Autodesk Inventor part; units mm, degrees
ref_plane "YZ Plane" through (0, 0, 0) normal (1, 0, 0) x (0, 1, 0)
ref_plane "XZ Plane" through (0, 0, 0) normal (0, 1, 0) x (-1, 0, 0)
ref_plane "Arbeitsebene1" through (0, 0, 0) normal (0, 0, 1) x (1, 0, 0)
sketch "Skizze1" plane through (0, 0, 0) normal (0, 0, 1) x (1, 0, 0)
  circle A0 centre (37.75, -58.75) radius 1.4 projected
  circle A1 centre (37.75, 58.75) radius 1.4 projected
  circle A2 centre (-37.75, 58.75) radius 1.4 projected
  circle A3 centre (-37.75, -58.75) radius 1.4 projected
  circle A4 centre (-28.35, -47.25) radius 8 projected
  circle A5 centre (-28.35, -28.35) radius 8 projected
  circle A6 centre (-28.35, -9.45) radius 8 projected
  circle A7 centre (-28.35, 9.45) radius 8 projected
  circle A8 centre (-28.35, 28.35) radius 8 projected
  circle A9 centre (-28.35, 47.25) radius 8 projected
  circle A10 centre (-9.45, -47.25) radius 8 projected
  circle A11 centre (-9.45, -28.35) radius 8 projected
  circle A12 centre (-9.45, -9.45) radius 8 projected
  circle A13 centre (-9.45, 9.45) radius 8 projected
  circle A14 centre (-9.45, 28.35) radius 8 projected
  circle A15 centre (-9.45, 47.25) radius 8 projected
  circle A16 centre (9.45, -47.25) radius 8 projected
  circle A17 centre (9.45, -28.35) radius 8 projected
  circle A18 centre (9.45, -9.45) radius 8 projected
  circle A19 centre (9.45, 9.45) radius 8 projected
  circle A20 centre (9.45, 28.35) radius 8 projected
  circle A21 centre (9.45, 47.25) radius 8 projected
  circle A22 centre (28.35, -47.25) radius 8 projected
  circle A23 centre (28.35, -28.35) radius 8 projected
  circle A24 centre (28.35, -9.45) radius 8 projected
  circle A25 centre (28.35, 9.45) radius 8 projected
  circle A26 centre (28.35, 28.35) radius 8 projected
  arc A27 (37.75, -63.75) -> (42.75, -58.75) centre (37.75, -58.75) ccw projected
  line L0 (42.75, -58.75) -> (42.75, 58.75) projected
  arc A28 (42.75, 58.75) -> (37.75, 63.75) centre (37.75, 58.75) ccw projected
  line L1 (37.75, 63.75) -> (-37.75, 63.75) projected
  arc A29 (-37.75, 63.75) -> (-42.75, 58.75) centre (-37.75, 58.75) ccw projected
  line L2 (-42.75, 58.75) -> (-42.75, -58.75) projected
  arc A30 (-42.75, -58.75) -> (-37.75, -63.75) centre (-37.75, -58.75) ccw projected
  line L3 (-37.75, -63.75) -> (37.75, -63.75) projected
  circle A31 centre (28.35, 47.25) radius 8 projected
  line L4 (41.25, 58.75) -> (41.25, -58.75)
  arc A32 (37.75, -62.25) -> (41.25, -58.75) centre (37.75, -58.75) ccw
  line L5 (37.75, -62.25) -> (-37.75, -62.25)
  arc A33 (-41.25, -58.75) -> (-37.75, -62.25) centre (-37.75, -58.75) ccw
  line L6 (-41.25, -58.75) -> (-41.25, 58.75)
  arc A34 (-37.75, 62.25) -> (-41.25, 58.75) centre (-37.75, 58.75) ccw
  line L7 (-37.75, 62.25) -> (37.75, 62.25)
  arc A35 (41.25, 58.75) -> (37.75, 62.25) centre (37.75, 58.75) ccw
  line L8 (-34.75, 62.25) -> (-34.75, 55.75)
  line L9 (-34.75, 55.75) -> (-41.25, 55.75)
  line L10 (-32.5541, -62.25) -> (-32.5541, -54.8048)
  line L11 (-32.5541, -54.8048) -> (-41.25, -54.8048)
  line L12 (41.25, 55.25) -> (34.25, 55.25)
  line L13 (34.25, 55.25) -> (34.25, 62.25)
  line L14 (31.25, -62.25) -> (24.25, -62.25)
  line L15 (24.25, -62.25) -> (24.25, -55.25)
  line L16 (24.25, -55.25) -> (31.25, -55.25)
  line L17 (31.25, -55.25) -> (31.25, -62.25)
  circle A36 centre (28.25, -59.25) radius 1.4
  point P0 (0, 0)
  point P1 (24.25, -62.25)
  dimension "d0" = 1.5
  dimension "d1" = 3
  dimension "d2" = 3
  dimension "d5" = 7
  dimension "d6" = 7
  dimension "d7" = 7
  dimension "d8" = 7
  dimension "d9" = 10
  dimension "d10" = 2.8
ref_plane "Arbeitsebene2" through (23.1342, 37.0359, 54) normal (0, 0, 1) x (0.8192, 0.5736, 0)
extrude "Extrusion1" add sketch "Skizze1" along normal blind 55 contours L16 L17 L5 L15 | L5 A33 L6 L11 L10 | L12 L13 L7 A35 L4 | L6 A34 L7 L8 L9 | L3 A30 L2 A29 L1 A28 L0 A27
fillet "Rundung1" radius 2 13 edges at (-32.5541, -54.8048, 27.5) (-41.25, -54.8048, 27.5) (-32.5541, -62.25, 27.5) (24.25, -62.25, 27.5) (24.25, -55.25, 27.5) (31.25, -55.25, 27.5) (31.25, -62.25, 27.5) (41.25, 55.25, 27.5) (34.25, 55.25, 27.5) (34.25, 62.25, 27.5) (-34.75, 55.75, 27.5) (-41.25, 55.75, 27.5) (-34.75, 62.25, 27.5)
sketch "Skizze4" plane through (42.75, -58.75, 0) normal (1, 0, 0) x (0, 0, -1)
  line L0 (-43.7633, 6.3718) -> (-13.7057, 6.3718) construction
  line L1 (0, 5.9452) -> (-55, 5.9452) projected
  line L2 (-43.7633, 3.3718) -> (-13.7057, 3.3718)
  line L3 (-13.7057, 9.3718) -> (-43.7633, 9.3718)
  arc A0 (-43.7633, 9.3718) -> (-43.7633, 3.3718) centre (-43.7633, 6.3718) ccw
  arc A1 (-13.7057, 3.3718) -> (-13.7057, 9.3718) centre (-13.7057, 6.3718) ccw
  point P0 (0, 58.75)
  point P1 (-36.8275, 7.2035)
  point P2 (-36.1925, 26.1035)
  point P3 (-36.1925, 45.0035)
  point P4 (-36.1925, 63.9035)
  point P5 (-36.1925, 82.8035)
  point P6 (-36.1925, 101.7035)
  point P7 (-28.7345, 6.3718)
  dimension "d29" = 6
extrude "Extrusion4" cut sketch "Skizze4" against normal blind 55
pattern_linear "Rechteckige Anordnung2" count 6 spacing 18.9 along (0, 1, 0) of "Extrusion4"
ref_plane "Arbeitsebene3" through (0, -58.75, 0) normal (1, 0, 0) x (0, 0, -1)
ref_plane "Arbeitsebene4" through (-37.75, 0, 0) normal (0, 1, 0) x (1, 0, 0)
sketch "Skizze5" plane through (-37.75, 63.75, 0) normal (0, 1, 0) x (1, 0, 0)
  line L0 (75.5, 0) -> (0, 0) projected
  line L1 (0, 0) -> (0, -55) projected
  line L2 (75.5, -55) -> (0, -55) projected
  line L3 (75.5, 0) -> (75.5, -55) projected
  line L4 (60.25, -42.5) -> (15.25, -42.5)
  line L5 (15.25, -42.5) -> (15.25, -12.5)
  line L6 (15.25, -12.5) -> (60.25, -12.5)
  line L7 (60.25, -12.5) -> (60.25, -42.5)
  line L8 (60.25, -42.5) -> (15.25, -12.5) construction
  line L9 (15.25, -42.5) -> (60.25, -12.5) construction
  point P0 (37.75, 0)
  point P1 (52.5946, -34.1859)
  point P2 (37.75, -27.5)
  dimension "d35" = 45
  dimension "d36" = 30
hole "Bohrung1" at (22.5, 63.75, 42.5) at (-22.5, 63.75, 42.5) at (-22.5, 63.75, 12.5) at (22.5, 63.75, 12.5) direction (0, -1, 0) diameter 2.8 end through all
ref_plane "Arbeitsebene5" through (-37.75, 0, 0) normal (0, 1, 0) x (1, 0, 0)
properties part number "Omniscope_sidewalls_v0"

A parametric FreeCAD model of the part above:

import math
import FreeCAD as App
import Part
import Sketcher


def edges_at(feature, points):
    """Names of the edges that pass closest to the given points."""
    edges = feature.Shape.Edges
    near = lambda p: min(range(len(edges)), key=lambda i: edges[i].distToShape(Part.Vertex(*p))[0])
    return sorted({f"Edge{near(p) + 1}" for p in points})

doc = App.newDocument("Part")
params = doc.addObject("Spreadsheet::Sheet", "Params")
for row, (alias, value) in enumerate([
    ("sketch1_radius", "5 mm"),
    ("sketch1_diameter", "2.8 mm"),
    ("sketch1_radius2", "3.5 mm"),
    ("sketch1_width", "7 mm"),
    ("sketch1_width2", "69 mm"),
    ("pad1_length", "55 mm"),
    ("fillet_radius", "2 mm"),
    ("sketch2_radius", "3 mm"),
    ("pocket1_length", "55 mm"),
    ("linearpattern_pitch", "18.9 mm"),
    ("sketch3_diameter", "2.8 mm"),
    ("hole_diameter", "2.8 mm"),
], start=1):
    params.set(f"A{row}", alias)
    params.set(f"B{row}", "=" + value)
    params.setAlias(f"B{row}", alias)

body = doc.addObject("PartDesign::Body", "Body")

sketch1 = doc.addObject("Sketcher::SketchObject", "Sketch")
body.addObject(sketch1)
sketch1.AttachmentSupport = (doc.XY_Plane, [""])
sketch1.MapMode = "FlatFace"
sketch1.addGeometry([
    Part.LineSegment(App.Vector(-37.8, -63.8, 0), App.Vector(37.8, -63.8, 0)),
    Part.ArcOfCircle(Part.Circle(App.Vector(37.8, -58.8, 0), App.Vector(0, 0, 1), 5), math.radians(-90), math.radians(0)),
    Part.LineSegment(App.Vector(42.8, -58.8, 0), App.Vector(42.8, 58.8, 0)),
    Part.ArcOfCircle(Part.Circle(App.Vector(37.8, 58.8, 0), App.Vector(0, 0, 1), 5), math.radians(0), math.radians(90)),
    Part.LineSegment(App.Vector(37.8, 63.8, 0), App.Vector(-37.8, 63.8, 0)),
    Part.ArcOfCircle(Part.Circle(App.Vector(-37.8, 58.8, 0), App.Vector(0, 0, 1), 5), math.radians(90), math.radians(180)),
    Part.LineSegment(App.Vector(-42.8, 58.8, 0), App.Vector(-42.8, -58.8, 0)),
    Part.ArcOfCircle(Part.Circle(App.Vector(-37.8, -58.8, 0), App.Vector(0, 0, 1), 5), math.radians(180), math.radians(270)),
    Part.LineSegment(App.Vector(31.2, -55.2, 0), App.Vector(24.2, -55.2, 0)),
    Part.LineSegment(App.Vector(24.2, -55.2, 0), App.Vector(24.2, -62.2, 0)),
    Part.LineSegment(App.Vector(24.2, -62.2, 0), App.Vector(-32.6, -62.2, 0)),
    Part.LineSegment(App.Vector(-32.6, -62.2, 0), App.Vector(-32.6, -54.8, 0)),
    Part.LineSegment(App.Vector(-32.6, -54.8, 0), App.Vector(-41.2, -54.8, 0)),
    Part.LineSegment(App.Vector(-41.2, -54.8, 0), App.Vector(-41.2, 55.8, 0)),
    Part.LineSegment(App.Vector(-41.2, 55.8, 0), App.Vector(-34.8, 55.8, 0)),
    Part.LineSegment(App.Vector(-34.8, 55.8, 0), App.Vector(-34.8, 62.2, 0)),
    Part.LineSegment(App.Vector(-34.8, 62.2, 0), App.Vector(34.2, 62.2, 0)),
    Part.LineSegment(App.Vector(34.2, 62.2, 0), App.Vector(34.2, 55.2, 0)),
    Part.LineSegment(App.Vector(34.2, 55.2, 0), App.Vector(41.2, 55.2, 0)),
    Part.LineSegment(App.Vector(41.2, 55.2, 0), App.Vector(41.2, -58.8, 0)),
    Part.ArcOfCircle(Part.Circle(App.Vector(37.8, -58.8, 0), App.Vector(0, 0, 1), 3.5), math.radians(-90), math.radians(0)),
    Part.LineSegment(App.Vector(37.8, -62.2, 0), App.Vector(31.2, -62.2, 0)),
    Part.LineSegment(App.Vector(31.2, -62.2, 0), App.Vector(31.2, -55.2, 0)),
    Part.Circle(App.Vector(28.2, -59.2, 0), App.Vector(0, 0, 1), 1.4),
    Part.Circle(App.Vector(37.8, 58.8, 0), App.Vector(0, 0, 1), 1.4),
    Part.Circle(App.Vector(-37.8, 58.8, 0), App.Vector(0, 0, 1), 1.4),
    Part.Circle(App.Vector(-37.8, -58.8, 0), App.Vector(0, 0, 1), 1.4),
], False)
sketch1.addConstraint([
    Sketcher.Constraint("Tangent", 0, 2, 1, 1),
    Sketcher.Constraint("Tangent", 1, 2, 2, 1),
    Sketcher.Constraint("Tangent", 2, 2, 3, 1),
    Sketcher.Constraint("Tangent", 3, 2, 4, 1),
    Sketcher.Constraint("Tangent", 4, 2, 5, 1),
    Sketcher.Constraint("Tangent", 5, 2, 6, 1),
    Sketcher.Constraint("Tangent", 6, 2, 7, 1),
    Sketcher.Constraint("Tangent", 7, 2, 0, 1),
    Sketcher.Constraint("Coincident", 8, 2, 9, 1),
    Sketcher.Constraint("Coincident", 9, 2, 10, 1),
    Sketcher.Constraint("Coincident", 10, 2, 11, 1),
    Sketcher.Constraint("Coincident", 11, 2, 12, 1),
    Sketcher.Constraint("Coincident", 12, 2, 13, 1),
    Sketcher.Constraint("Coincident", 13, 2, 14, 1),
    Sketcher.Constraint("Coincident", 14, 2, 15, 1),
    Sketcher.Constraint("Coincident", 15, 2, 16, 1),
    Sketcher.Constraint("Coincident", 16, 2, 17, 1),
    Sketcher.Constraint("Coincident", 17, 2, 18, 1),
    Sketcher.Constraint("Coincident", 18, 2, 19, 1),
    Sketcher.Constraint("Tangent", 19, 2, 20, 2),
    Sketcher.Constraint("Tangent", 20, 1, 21, 1),
    Sketcher.Constraint("Coincident", 21, 2, 22, 1),
    Sketcher.Constraint("Coincident", 22, 2, 8, 1),
    Sketcher.Constraint("Horizontal", 0),
    Sketcher.Constraint("Vertical", 2),
    Sketcher.Constraint("Horizontal", 4),
    Sketcher.Constraint("Vertical", 6),
    Sketcher.Constraint("Horizontal", 8),
    Sketcher.Constraint("Vertical", 9),
    Sketcher.Constraint("Horizontal", 10),
    Sketcher.Constraint("Vertical", 11),
    Sketcher.Constraint("Horizontal", 12),
    Sketcher.Constraint("Vertical", 13),
    Sketcher.Constraint("Horizontal", 14),
    Sketcher.Constraint("Vertical", 15),
    Sketcher.Constraint("Horizontal", 16),
    Sketcher.Constraint("Vertical", 17),
    Sketcher.Constraint("Horizontal", 18),
    Sketcher.Constraint("Vertical", 19),
    Sketcher.Constraint("Horizontal", 21),
    Sketcher.Constraint("Vertical", 22),
    Sketcher.Constraint("Coincident", 20, 3, 1, 3),
    Sketcher.Constraint("Coincident", 24, 3, 3, 3),
    Sketcher.Constraint("Coincident", 25, 3, 5, 3),
    Sketcher.Constraint("Coincident", 26, 3, 7, 3),
    Sketcher.Constraint("Equal", 1, 3),
    Sketcher.Constraint("Equal", 3, 5),
    Sketcher.Constraint("Equal", 5, 7),
    Sketcher.Constraint("Equal", 23, 24),
    Sketcher.Constraint("Equal", 24, 25),
    Sketcher.Constraint("Equal", 25, 26),
    Sketcher.Constraint("Symmetric", 1, 3, 5, 3, -1, 1),
    Sketcher.Constraint("Horizontal", 10, 2, 20, 1),
    Sketcher.Constraint("Equal", 8, 18),
    Sketcher.Constraint("Equal", 14, 21),
    Sketcher.Constraint("Equal", 18, 9),
    Sketcher.Constraint("Equal", 21, 15),
    Sketcher.Constraint("Equal", 9, 17),
    Sketcher.Constraint("Radius", 1, 5.0),
    Sketcher.Constraint("Diameter", 23, 2.8),
    Sketcher.Constraint("Radius", 20, 3.5),
    Sketcher.Constraint("DistanceX", 8, 2, 8, 1, 7.0),
    Sketcher.Constraint("DistanceY", 9, 2, 23, 3, 3.0),
    Sketcher.Constraint("DistanceY", 13, 2, 5, 2, 3.0),
    Sketcher.Constraint("DistanceX", 5, 3, 14, 2, 3.0),
    Sketcher.Constraint("DistanceX", 23, 3, 21, 2, 3.0),
    Sketcher.Constraint("DistanceX", 6, 2, 12, 2, 1.5),
    Sketcher.Constraint("DistanceX", 16, 1, 16, 2, 69.0),
    Sketcher.Constraint("DistanceY", 19, 2, 19, 1, 114.0),
    Sketcher.Constraint("DistanceX", 10, 2, 10, 1, 56.804),
    Sketcher.Constraint("DistanceY", 11, 1, 11, 2, 7.4452),
])
sketch1.setExpression("Constraints[58]", "Params.sketch1_radius")
sketch1.setExpression("Constraints[59]", "Params.sketch1_diameter")
sketch1.setExpression("Constraints[60]", "Params.sketch1_radius2")
sketch1.setExpression("Constraints[61]", "Params.sketch1_width")
sketch1.setExpression("Constraints[67]", "Params.sketch1_width2")
pad1 = doc.addObject("PartDesign::Pad", "Pad")
body.addObject(pad1)
pad1.Profile = sketch1
pad1.setExpression("Length", "Params.pad1_length")
doc.recompute()

fillet = doc.addObject("PartDesign::Fillet", "Fillet")
body.addObject(fillet)
fillet.Base = (pad1, edges_at(pad1, [
    (-32.554, -54.805, 27.5),
    (-41.25, -54.805, 27.5),
    (-32.554, -62.25, 27.5),
    (24.25, -62.25, 27.5),
    (24.25, -55.25, 27.5),
    (31.25, -55.25, 27.5),
    (31.25, -62.25, 27.5),
    (41.25, 55.25, 27.5),
    (34.25, 55.25, 27.5),
    (34.25, 62.25, 27.5),
    (-34.75, 55.75, 27.5),
    (-41.25, 55.75, 27.5),
    (-34.75, 62.25, 27.5),
]))
fillet.setExpression("Radius", "Params.fillet_radius")

sketch2 = doc.addObject("Sketcher::SketchObject", "Sketch001")
body.addObject(sketch2)
sketch2.AttachmentSupport = (doc.YZ_Plane, [""])
sketch2.MapMode = "FlatFace"
sketch2.AttachmentOffset = App.Placement(App.Vector(0, 0, 42.75), App.Rotation())
sketch2.addGeometry([
    Part.ArcOfCircle(Part.Circle(App.Vector(-52.4, 13.7, 0), App.Vector(0, 0, 1), 3), math.radians(180), math.radians(360)),
    Part.LineSegment(App.Vector(-49.4, 13.7, 0), App.Vector(-49.4, 43.8, 0)),
    Part.ArcOfCircle(Part.Circle(App.Vector(-52.4, 43.8, 0), App.Vector(0, 0, 1), 3), math.radians(0), math.radians(180)),
    Part.LineSegment(App.Vector(-55.4, 43.8, 0), App.Vector(-55.4, 13.7, 0)),
], False)
sketch2.addConstraint([
    Sketcher.Constraint("Tangent", 0, 2, 1, 1),
    Sketcher.Constraint("Tangent", 1, 2, 2, 1),
    Sketcher.Constraint("Tangent", 2, 2, 3, 1),
    Sketcher.Constraint("Tangent", 3, 2, 0, 1),
    Sketcher.Constraint("Vertical", 1),
    Sketcher.Constraint("Vertical", 3),
    Sketcher.Constraint("Radius", 0, 3.0),
    Sketcher.Constraint("DistanceY", 1, 1, 1, 2, 30.0576),
    Sketcher.Constraint("DistanceX", 0, 3, -1, 1, 52.3782),
    Sketcher.Constraint("DistanceY", -1, 1, 0, 3, 13.7057),
])
sketch2.setExpression("Constraints[6]", "Params.sketch2_radius")
pocket1 = doc.addObject("PartDesign::Pocket", "Pocket")
body.addObject(pocket1)
pocket1.Profile = sketch2
pocket1.setExpression("Length", "Params.pocket1_length")
doc.recompute()

linearpattern = doc.addObject("PartDesign::LinearPattern", "LinearPattern")
body.addObject(linearpattern)
linearpattern.Originals = [pocket1]
linearpattern.Direction = (doc.Y_Axis, [""])
linearpattern.Mode = "offset"
linearpattern.setExpression("Offset", "Params.linearpattern_pitch")
linearpattern.Occurrences = 6
body.Tip = linearpattern

sketch3 = doc.addObject("Sketcher::SketchObject", "Sketch002")
body.addObject(sketch3)
sketch3.AttachmentSupport = (doc.XZ_Plane, [""])
sketch3.MapMode = "FlatFace"
sketch3.AttachmentOffset = App.Placement(App.Vector(0, 0, -63.75), App.Rotation())
sketch3.addGeometry([
    Part.Circle(App.Vector(22.5, 42.5, 0), App.Vector(0, 0, 1), 1.4),
    Part.Circle(App.Vector(-22.5, 42.5, 0), App.Vector(0, 0, 1), 1.4),
    Part.Circle(App.Vector(-22.5, 12.5, 0), App.Vector(0, 0, 1), 1.4),
    Part.Circle(App.Vector(22.5, 12.5, 0), App.Vector(0, 0, 1), 1.4),
], False)
sketch3.addConstraint([
    Sketcher.Constraint("Equal", 0, 1),
    Sketcher.Constraint("Equal", 1, 2),
    Sketcher.Constraint("Equal", 2, 3),
    Sketcher.Constraint("Symmetric", 0, 3, 1, 3, -2),
    Sketcher.Constraint("Symmetric", 2, 3, 3, 3, -2),
    Sketcher.Constraint("Vertical", 1, 3, 2, 3),
    Sketcher.Constraint("Diameter", 0, 2.8),
    Sketcher.Constraint("DistanceX", 1, 3, 0, 3, 45.0),
    Sketcher.Constraint("DistanceY", 2, 3, 1, 3, 30.0),
    Sketcher.Constraint("DistanceY", -1, 1, 0, 3, 42.5),
])
sketch3.setExpression("Constraints[6]", "Params.sketch3_diameter")
doc.recompute()
hole = doc.addObject("PartDesign::Hole", "Hole")
body.addObject(hole)
hole.Profile = sketch3
hole.ThreadType = "None"
hole.setExpression("Diameter", "Params.hole_diameter")
hole.DepthType = "ThroughAll"
hole.Reversed = True

doc.recompute()
